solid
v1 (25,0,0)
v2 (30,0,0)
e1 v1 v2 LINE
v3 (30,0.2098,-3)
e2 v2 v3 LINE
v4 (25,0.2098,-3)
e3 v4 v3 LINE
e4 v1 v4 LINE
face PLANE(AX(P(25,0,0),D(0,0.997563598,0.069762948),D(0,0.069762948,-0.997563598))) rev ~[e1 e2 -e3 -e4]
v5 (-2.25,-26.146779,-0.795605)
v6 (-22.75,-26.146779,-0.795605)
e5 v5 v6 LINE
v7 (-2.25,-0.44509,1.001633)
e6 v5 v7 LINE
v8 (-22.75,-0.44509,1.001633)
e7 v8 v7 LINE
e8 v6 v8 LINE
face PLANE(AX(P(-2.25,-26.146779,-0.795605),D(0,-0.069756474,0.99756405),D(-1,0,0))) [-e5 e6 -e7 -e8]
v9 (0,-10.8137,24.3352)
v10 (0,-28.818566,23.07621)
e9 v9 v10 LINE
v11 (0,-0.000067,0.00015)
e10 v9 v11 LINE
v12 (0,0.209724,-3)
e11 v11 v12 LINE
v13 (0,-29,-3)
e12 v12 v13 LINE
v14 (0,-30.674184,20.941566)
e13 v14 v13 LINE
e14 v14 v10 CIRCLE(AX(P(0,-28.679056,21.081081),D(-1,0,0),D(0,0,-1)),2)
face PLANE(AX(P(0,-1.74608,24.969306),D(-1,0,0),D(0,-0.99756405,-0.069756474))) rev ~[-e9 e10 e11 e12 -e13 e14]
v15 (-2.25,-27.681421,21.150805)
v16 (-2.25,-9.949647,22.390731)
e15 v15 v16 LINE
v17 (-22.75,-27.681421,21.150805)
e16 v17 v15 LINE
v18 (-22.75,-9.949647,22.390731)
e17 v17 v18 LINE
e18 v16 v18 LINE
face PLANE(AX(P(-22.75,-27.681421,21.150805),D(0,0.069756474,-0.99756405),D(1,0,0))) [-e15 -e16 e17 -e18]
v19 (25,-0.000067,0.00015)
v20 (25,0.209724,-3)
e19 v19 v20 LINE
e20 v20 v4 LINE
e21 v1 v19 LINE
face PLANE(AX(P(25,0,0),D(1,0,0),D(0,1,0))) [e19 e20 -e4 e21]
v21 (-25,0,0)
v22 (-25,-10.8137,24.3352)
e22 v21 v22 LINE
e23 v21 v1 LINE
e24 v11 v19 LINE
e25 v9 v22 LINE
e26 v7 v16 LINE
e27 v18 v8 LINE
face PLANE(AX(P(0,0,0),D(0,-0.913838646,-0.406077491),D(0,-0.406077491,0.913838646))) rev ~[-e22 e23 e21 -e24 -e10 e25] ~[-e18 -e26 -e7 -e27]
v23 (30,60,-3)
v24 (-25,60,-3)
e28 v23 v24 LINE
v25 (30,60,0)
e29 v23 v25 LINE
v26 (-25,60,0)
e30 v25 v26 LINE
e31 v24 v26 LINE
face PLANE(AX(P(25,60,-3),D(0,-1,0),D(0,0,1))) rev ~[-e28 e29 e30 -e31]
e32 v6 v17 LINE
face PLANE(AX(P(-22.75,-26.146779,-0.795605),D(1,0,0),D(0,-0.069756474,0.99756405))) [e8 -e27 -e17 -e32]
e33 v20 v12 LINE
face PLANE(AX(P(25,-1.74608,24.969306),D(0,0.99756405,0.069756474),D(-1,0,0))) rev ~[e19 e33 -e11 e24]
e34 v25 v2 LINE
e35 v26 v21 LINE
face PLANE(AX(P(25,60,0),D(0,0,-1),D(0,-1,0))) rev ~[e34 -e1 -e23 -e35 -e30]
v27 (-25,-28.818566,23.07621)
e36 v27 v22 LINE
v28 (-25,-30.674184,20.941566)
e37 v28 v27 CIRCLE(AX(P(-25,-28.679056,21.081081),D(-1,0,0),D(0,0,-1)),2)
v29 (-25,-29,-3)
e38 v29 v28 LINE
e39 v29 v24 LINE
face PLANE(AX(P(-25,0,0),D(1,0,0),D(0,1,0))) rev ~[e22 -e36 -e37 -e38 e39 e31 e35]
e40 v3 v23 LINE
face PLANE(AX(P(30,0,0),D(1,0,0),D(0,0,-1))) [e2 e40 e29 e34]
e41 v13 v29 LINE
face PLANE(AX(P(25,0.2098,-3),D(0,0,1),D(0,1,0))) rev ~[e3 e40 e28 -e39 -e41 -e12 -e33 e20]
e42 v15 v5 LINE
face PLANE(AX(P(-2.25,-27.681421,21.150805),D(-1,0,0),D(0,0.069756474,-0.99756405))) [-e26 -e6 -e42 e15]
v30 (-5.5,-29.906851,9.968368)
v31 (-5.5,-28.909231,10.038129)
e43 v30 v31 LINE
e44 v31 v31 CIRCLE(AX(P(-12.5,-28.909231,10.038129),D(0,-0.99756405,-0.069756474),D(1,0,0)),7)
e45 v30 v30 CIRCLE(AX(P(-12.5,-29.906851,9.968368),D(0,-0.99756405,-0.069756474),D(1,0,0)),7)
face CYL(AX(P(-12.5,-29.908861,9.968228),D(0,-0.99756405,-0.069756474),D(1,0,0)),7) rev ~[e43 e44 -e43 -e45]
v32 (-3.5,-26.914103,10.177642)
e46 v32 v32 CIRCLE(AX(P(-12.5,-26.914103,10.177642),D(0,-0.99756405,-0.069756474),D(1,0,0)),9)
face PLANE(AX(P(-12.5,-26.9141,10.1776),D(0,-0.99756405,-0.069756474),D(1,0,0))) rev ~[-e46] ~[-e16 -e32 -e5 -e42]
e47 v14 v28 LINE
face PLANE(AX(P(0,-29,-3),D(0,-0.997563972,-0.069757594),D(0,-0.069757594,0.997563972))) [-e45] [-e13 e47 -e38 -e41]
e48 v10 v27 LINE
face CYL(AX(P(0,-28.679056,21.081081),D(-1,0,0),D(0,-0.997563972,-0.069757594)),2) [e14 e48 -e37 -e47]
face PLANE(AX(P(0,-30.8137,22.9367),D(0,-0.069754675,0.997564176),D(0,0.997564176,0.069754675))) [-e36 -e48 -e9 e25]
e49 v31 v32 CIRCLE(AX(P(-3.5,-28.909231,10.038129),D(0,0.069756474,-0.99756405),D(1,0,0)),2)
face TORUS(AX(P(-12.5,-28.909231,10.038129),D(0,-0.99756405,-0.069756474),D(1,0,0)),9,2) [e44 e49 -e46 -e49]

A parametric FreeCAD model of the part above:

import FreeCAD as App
import Part
import Sketcher
Q = App.Units.Quantity


def edges_at(feature, points):
    """Names of the edges that pass closest to the given points."""
    edges = feature.Shape.Edges
    near = lambda p: min(range(len(edges)), key=lambda i: edges[i].distToShape(Part.Vertex(*p))[0])
    return sorted({f"Edge{near(p) + 1}" for p in points})


def add_polygon(sketch, points):
    """Adds a closed chain of lines whose ends are joined by coincident constraints."""
    first, n = sketch.GeometryCount, len(points)
    for a, b in zip(points, points[1:] + points[:1]):
        sketch.addGeometry(Part.LineSegment(App.Vector(*a, 0), App.Vector(*b, 0)), False)
    for i in range(n):
        sketch.addConstraint(Sketcher.Constraint("Coincident", first + i, 2, first + (i + 1) % n, 1))

doc = App.newDocument("Part")
body = doc.addObject("PartDesign::Body", "Body")

sketch1 = body.newObject("Sketcher::SketchObject", "Sketch")
sketch1.AttachmentSupport = (doc.getObject("YZ_Plane"), [""])
sketch1.MapMode = "FlatFace"
add_polygon(sketch1, [(-29, -3), (60, -3), (60, 0), (0, 0), (-10.8, 24.3), (-30.8, 22.9)])
sketch1.addConstraint([
    Sketcher.Constraint("Horizontal", 0),
    Sketcher.Constraint("Vertical", 1),
    Sketcher.Constraint("Horizontal", 2),
    Sketcher.Constraint("Coincident", 2, 2, -1, 1),
    Sketcher.Constraint("Perpendicular", 4, 5),
    Sketcher.Constraint("DistanceX", 2, 2, 2, 1, Q("60 mm")),
    Sketcher.Constraint("DistanceY", 1, 1, 1, 2, Q("3 mm")),
    Sketcher.Constraint("Distance", 5, Q("26 mm")),
    Sketcher.Constraint("DistanceX", 5, 2, -1, 1, Q("29 mm")),
    Sketcher.Constraint("DistanceX", 4, 2, 3, 2, Q("20 mm")),
    Sketcher.Constraint("Angle", 4, Q("-176 deg")),
])
pad1 = body.newObject("PartDesign::Pad", "Pad")
pad1.Profile = sketch1
pad1.Length = 50
pad1.Midplane = True

sketch2 = body.newObject("Sketcher::SketchObject", "Sketch001")
sketch2.Placement = App.Placement(App.Vector(-25, -30.8137, 22.9367), App.Rotation(App.Vector(1, 0, 0), App.Vector(0, 0.99756405, 0.069756474), App.Vector(0, -0.069756474, 0.99756405), "ZXY"))
add_polygon(sketch2, [(50, 0), (50, 29), (25, 29), (25, 0)])
sketch2.addConstraint([
    Sketcher.Constraint("Vertical", 0),
    Sketcher.Constraint("Horizontal", 1),
    Sketcher.Constraint("Vertical", 2),
    Sketcher.Constraint("Horizontal", 3),
    Sketcher.Constraint("PointOnObject", 2, 2, -1),
    Sketcher.Constraint("DistanceX", 1, 2, 1, 1, Q("25 mm")),
    Sketcher.Constraint("DistanceX", -1, 1, 0, 2, Q("50 mm")),
    Sketcher.Constraint("DistanceY", 0, 1, 0, 2, Q("29.1386 mm")),
])
pocket1 = body.newObject("PartDesign::Pocket", "Pocket")
pocket1.Profile = sketch2
pocket1.Type = "ThroughAll"

sketch3 = body.newObject("Sketcher::SketchObject", "Sketch002")
sketch3.Placement = App.Placement(App.Vector(-25, -30.8137, 22.9367), App.Rotation(App.Vector(1, 0, 0), App.Vector(0, -0.069756474, 0.99756405), App.Vector(0, -0.99756405, -0.069756474), "ZXY"))
sketch3.addGeometry(Part.Circle(App.Vector(12, -13, 0), App.Vector(0, 0, 1), 7), False)
sketch3.addConstraint([
    Sketcher.Constraint("Diameter", 0, Q("14 mm")),
    Sketcher.Constraint("DistanceY", 0, 3, -1, 1, Q("13 mm")),
    Sketcher.Constraint("DistanceX", -1, 1, 0, 3, Q("12.5 mm")),
])
pocket2 = body.newObject("PartDesign::Pocket", "Pocket001")
pocket2.Profile = sketch3
pocket2.Length = 3

sketch4 = body.newObject("Sketcher::SketchObject", "Sketch003")
sketch4.Placement = App.Placement(App.Vector(-12.5, -26.9141, 10.1776), App.Rotation(App.Vector(1, 0, 0), App.Vector(0, -0.069756474, 0.99756405), App.Vector(0, -0.99756405, -0.069756474), "ZXY"))
add_polygon(sketch4, [(-10, -11), (10, -11), (10, 11), (-10, 11)])
sketch4.addConstraint([
    Sketcher.Constraint("Horizontal", 0),
    Sketcher.Constraint("Vertical", 1),
    Sketcher.Constraint("Horizontal", 2),
    Sketcher.Constraint("Vertical", 3),
    Sketcher.Constraint("Symmetric", 0, 2, 2, 2, -1, 1),
    Sketcher.Constraint("DistanceY", 1, 1, 1, 2, Q("22 mm")),
    Sketcher.Constraint("DistanceX", 0, 1, 0, 2, Q("20.5 mm")),
])
pocket3 = body.newObject("PartDesign::Pocket", "Pocket002")
pocket3.Profile = sketch4
pocket3.Type = "UpToFirst"
doc.recompute()

fillet = body.newObject("PartDesign::Fillet", "Fillet")
fillet.Base = (pocket3, edges_at(pocket3, [(-19.5, -26.914, 10.178)]))
fillet.Radius = 2
doc.recompute()

fillet2 = body.newObject("PartDesign::Fillet", "Fillet001")
fillet2.Base = (fillet, edges_at(fillet, [(-12.5, -30.814, 22.937)]))
fillet2.Radius = 2

sketch5 = body.newObject("Sketcher::SketchObject", "Sketch004")
sketch5.AttachmentSupport = (doc.getObject("YZ_Plane"), [""])
sketch5.MapMode = "FlatFace"
sketch5.AttachmentOffset = App.Placement(App.Vector(0, 0, 25), App.Rotation())
add_polygon(sketch5, [(60, 0), (0, 0), (0.2, -3), (60, -3)])
sketch5.addConstraint([
    Sketcher.Constraint("Horizontal", 0),
    Sketcher.Constraint("Horizontal", 2),
    Sketcher.Constraint("Vertical", 3),
    Sketcher.Constraint("Coincident", 0, 2, -1, 1),
    Sketcher.Constraint("DistanceX", 0, 2, 0, 1, Q("60 mm")),
    Sketcher.Constraint("DistanceY", 3, 1, 3, 2, Q("3 mm")),
    Sketcher.Constraint("Angle", 1, Q("-85.9996 deg")),
])
pad2 = body.newObject("PartDesign::Pad", "Pad001")
pad2.Profile = sketch5
pad2.Length = 5

doc.recompute()
